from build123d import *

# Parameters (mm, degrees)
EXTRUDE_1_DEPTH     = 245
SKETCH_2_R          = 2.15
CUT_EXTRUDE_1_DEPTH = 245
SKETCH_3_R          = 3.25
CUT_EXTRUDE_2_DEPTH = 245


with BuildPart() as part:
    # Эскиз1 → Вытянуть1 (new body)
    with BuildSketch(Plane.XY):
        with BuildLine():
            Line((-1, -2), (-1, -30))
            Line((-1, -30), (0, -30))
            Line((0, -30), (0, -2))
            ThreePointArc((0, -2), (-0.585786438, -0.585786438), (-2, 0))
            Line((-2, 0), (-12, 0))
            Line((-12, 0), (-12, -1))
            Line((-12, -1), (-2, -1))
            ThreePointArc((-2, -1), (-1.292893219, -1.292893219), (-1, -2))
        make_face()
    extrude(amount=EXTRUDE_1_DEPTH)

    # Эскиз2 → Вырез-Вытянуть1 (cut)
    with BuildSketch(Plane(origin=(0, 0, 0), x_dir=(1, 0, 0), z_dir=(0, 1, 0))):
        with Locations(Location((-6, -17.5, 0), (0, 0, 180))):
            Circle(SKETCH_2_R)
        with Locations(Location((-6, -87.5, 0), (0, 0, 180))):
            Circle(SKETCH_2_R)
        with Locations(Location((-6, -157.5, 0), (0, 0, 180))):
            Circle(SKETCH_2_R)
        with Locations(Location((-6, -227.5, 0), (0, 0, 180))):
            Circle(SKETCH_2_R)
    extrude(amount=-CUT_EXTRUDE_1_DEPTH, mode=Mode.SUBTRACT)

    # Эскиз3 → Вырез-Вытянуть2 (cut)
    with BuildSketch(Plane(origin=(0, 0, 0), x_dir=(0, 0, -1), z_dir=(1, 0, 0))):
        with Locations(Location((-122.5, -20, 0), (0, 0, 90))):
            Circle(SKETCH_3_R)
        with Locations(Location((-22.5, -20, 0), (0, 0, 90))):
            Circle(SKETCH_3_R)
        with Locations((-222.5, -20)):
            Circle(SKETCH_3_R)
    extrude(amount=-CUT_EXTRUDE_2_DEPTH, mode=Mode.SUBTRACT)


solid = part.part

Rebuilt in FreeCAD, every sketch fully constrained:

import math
import FreeCAD as App
import Part
import Sketcher
Q = App.Units.Quantity

doc = App.newDocument("Part")
body = doc.addObject("PartDesign::Body", "Body")

sketch1 = body.newObject("Sketcher::SketchObject", "Sketch")
sketch1.AttachmentSupport = (doc.getObject("XY_Plane"), [""])
sketch1.MapMode = "FlatFace"
sketch1.addGeometry([
    Part.LineSegment(App.Vector(-1, -2, 0), App.Vector(-1, -30, 0)),
    Part.LineSegment(App.Vector(-1, -30, 0), App.Vector(0, -30, 0)),
    Part.LineSegment(App.Vector(0, -30, 0), App.Vector(0, -2, 0)),
    Part.ArcOfCircle(Part.Circle(App.Vector(-2, -2, 0), App.Vector(0, 0, 1), 2), math.radians(0), math.radians(90)),
    Part.LineSegment(App.Vector(-2, 0, 0), App.Vector(-12, 0, 0)),
    Part.LineSegment(App.Vector(-12, 0, 0), App.Vector(-12, -1, 0)),
    Part.LineSegment(App.Vector(-12, -1, 0), App.Vector(-2, -1, 0)),
    Part.ArcOfCircle(Part.Circle(App.Vector(-2, -2, 0), App.Vector(0, 0, 1), 1), math.radians(0), math.radians(90)),
], False)
sketch1.addConstraint([
    Sketcher.Constraint("Coincident", 0, 2, 1, 1),
    Sketcher.Constraint("Coincident", 1, 2, 2, 1),
    Sketcher.Constraint("Tangent", 2, 2, 3, 1),
    Sketcher.Constraint("Tangent", 3, 2, 4, 1),
    Sketcher.Constraint("Coincident", 4, 2, 5, 1),
    Sketcher.Constraint("Coincident", 5, 2, 6, 1),
    Sketcher.Constraint("Tangent", 6, 2, 7, 2),
    Sketcher.Constraint("Tangent", 7, 1, 0, 1),
    Sketcher.Constraint("Vertical", 0),
    Sketcher.Constraint("Horizontal", 1),
    Sketcher.Constraint("Vertical", 2),
    Sketcher.Constraint("Horizontal", 4),
    Sketcher.Constraint("Vertical", 5),
    Sketcher.Constraint("Horizontal", 6),
    Sketcher.Constraint("Coincident", 7, 3, 3, 3),
    Sketcher.Constraint("PointOnObject", 1, 2, -2),
    Sketcher.Constraint("PointOnObject", 3, 2, -1),
    Sketcher.Constraint("Radius", 3, Q("2 mm")),
    Sketcher.Constraint("Radius", 7, Q("1 mm")),
    Sketcher.Constraint("DistanceX", 4, 2, 4, 1, Q("10 mm")),
    Sketcher.Constraint("DistanceY", 0, 2, 0, 1, Q("28 mm")),
])
pad1 = body.newObject("PartDesign::Pad", "Pad")
pad1.Profile = sketch1
pad1.Length = 245

sketch2 = body.newObject("Sketcher::SketchObject", "Sketch001")
sketch2.AttachmentSupport = (doc.getObject("XZ_Plane"), [""])
sketch2.MapMode = "FlatFace"
sketch2.addGeometry([
    Part.Circle(App.Vector(-6, 17.5, 0), App.Vector(0, 0, 1), 2.1),
    Part.Circle(App.Vector(-6, 87.5, 0), App.Vector(0, 0, 1), 2.1),
    Part.Circle(App.Vector(-6, 157.5, 0), App.Vector(0, 0, 1), 2.1),
    Part.Circle(App.Vector(-6, 227.5, 0), App.Vector(0, 0, 1), 2.1),
], False)
sketch2.addConstraint([
    Sketcher.Constraint("Equal", 0, 1),
    Sketcher.Constraint("Equal", 1, 2),
    Sketcher.Constraint("Equal", 2, 3),
    Sketcher.Constraint("Vertical", 0, 3, 1, 3),
    Sketcher.Constraint("Vertical", 1, 3, 2, 3),
    Sketcher.Constraint("Vertical", 2, 3, 3, 3),
    Sketcher.Constraint("Diameter", 0, Q("4.3 mm")),
    Sketcher.Constraint("DistanceX", 0, 3, -1, 1, Q("6 mm")),
    Sketcher.Constraint("DistanceY", 0, 3, 1, 3, Q("70 mm")),
    Sketcher.Constraint("DistanceY", 1, 3, 2, 3, Q("70 mm")),
    Sketcher.Constraint("DistanceY", 2, 3, 3, 3, Q("70 mm")),
    Sketcher.Constraint("DistanceY", -1, 1, 0, 3, Q("17.5 mm")),
])
pocket1 = body.newObject("PartDesign::Pocket", "Pocket")
pocket1.Profile = sketch2
pocket1.Length = 245
pocket1.Reversed = True

sketch3 = body.newObject("Sketcher::SketchObject", "Sketch002")
sketch3.AttachmentSupport = (doc.getObject("YZ_Plane"), [""])
sketch3.MapMode = "FlatFace"
sketch3.addGeometry([
    Part.Circle(App.Vector(-20, 122.5, 0), App.Vector(0, 0, 1), 3.2),
    Part.Circle(App.Vector(-20, 22.5, 0), App.Vector(0, 0, 1), 3.2),
    Part.Circle(App.Vector(-20, 222.5, 0), App.Vector(0, 0, 1), 3.2),
], False)
sketch3.addConstraint([
    Sketcher.Constraint("Equal", 0, 1),
    Sketcher.Constraint("Equal", 1, 2),
    Sketcher.Constraint("Vertical", 0, 3, 1, 3),
    Sketcher.Constraint("Vertical", 1, 3, 2, 3),
    Sketcher.Constraint("Diameter", 0, Q("6.5 mm")),
    Sketcher.Constraint("DistanceX", 0, 3, -1, 1, Q("20 mm")),
    Sketcher.Constraint("DistanceY", 1, 3, 0, 3, Q("100 mm")),
    Sketcher.Constraint("DistanceY", 0, 3, 2, 3, Q("100 mm")),
    Sketcher.Constraint("DistanceY", -1, 1, 0, 3, Q("122.5 mm")),
])
pocket2 = body.newObject("PartDesign::Pocket", "Pocket001")
pocket2.Profile = sketch3
pocket2.Length = 245

doc.recompute()
